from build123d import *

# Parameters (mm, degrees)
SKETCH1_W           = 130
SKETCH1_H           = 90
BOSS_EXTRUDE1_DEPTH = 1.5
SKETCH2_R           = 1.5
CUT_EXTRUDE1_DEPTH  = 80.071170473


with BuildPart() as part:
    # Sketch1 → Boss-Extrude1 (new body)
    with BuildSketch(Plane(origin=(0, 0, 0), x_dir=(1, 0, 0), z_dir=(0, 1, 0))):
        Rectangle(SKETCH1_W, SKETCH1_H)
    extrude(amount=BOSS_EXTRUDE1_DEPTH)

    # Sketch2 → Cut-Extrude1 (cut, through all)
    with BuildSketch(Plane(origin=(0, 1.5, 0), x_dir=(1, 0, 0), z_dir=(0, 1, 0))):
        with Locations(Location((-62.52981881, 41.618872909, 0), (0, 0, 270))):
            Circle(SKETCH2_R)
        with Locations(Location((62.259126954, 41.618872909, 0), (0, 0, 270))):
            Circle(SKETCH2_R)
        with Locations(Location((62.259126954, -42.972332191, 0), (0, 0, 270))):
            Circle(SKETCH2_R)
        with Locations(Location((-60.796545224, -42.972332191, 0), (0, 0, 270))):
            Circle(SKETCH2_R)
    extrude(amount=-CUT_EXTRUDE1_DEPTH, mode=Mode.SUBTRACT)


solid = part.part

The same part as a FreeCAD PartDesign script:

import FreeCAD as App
import Part
import Sketcher

V = App.Vector
Q = App.Units.Quantity

doc = App.newDocument("Part")
body = doc.addObject("PartDesign::Body", "Body")

# Sketch on XZ plane
sketch1 = body.newObject("Sketcher::SketchObject", "Sketch")
sketch1.AttachmentSupport = (doc.getObject("XZ_Plane"), [""])
sketch1.MapMode = "FlatFace"
sketch1.addGeometry([
    Part.LineSegment(V(-65, -45, 0), V(-65, 45, 0)),
    Part.LineSegment(V(-65, 45, 0), V(65, 45, 0)),
    Part.LineSegment(V(65, 45, 0), V(65, -45, 0)),
    Part.LineSegment(V(65, -45, 0), V(-65, -45, 0)),
], False)
sketch1.addConstraint([
    Sketcher.Constraint("Coincident", 0, 2, 1, 1),
    Sketcher.Constraint("Coincident", 1, 2, 2, 1),
    Sketcher.Constraint("Coincident", 2, 2, 3, 1),
    Sketcher.Constraint("Coincident", 3, 2, 0, 1),
    Sketcher.Constraint("Vertical", 0),
    Sketcher.Constraint("Horizontal", 1),
    Sketcher.Constraint("Vertical", 2),
    Sketcher.Constraint("Horizontal", 3),
    Sketcher.Constraint("Symmetric", 0, 2, 2, 2, -1, 1),
    Sketcher.Constraint("DistanceX", 1, 1, 1, 2, Q("130 mm")),
    Sketcher.Constraint("DistanceY", 0, 1, 0, 2, Q("90 mm")),
])
pad1 = body.newObject("PartDesign::Pad", "Pad")
pad1.Profile = sketch1
pad1.Length = 1.5
pad1.Reversed = True

# Sketch on XZ plane
sketch2 = body.newObject("Sketcher::SketchObject", "Sketch001")
sketch2.AttachmentSupport = (doc.getObject("XZ_Plane"), [""])
sketch2.MapMode = "FlatFace"
sketch2.AttachmentOffset = App.Placement(V(0, 0, -1.5), App.Rotation())
sketch2.addGeometry([
    Part.Circle(V(-62.5, -41.6, 0), V(0, 0, 1), 1.5),
    Part.Circle(V(62.3, -41.6, 0), V(0, 0, 1), 1.5),
    Part.Circle(V(62.3, 43, 0), V(0, 0, 1), 1.5),
    Part.Circle(V(-60.8, 43, 0), V(0, 0, 1), 1.5),
], False)
sketch2.addConstraint([
    Sketcher.Constraint("Equal", 0, 1),
    Sketcher.Constraint("Equal", 1, 2),
    Sketcher.Constraint("Equal", 2, 3),
    Sketcher.Constraint("Horizontal", 0, 3, 1, 3),
    Sketcher.Constraint("Horizontal", 2, 3, 3, 3),
    Sketcher.Constraint("Vertical", 1, 3, 2, 3),
    Sketcher.Constraint("Diameter", 0, Q("3 mm")),
    Sketcher.Constraint("DistanceX", 0, 3, -1, 1, Q("62.529819 mm")),
    Sketcher.Constraint("DistanceY", 0, 3, -1, 1, Q("41.618873 mm")),
    Sketcher.Constraint("DistanceX", -1, 1, 1, 3, Q("62.259127 mm")),
    Sketcher.Constraint("DistanceY", -1, 1, 2, 3, Q("42.972332 mm")),
    Sketcher.Constraint("DistanceX", 3, 3, -1, 1, Q("60.796545 mm")),
])
pocket1 = body.newObject("PartDesign::Pocket", "Pocket")
pocket1.Profile = sketch2
pocket1.Type = "ThroughAll"
pocket1.Reversed = True

doc.recompute()
